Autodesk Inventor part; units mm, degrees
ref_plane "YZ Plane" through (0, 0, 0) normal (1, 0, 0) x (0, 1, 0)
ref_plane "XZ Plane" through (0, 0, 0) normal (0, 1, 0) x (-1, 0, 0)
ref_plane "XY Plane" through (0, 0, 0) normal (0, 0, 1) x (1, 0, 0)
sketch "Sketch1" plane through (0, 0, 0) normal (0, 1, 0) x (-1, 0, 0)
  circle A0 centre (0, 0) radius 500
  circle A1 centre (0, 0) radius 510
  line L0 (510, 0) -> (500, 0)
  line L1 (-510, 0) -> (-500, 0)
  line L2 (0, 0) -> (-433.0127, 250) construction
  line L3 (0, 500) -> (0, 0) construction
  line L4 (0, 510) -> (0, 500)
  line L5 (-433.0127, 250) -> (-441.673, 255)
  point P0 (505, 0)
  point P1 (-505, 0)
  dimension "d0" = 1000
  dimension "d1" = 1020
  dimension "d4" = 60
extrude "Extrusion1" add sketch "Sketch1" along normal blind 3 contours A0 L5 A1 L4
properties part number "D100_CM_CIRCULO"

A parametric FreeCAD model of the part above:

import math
import FreeCAD as App
import Part
import Sketcher

V = App.Vector
Q = App.Units.Quantity

doc = App.newDocument("Part")
params = doc.addObject("Spreadsheet::Sheet", "Params")
for row, (alias, value) in enumerate([
    ("sketch1_radius", "500 mm"),
    ("sketch1_radius2", "510 mm"),
    ("pad1_length", "3 mm"),
], start=1):
    params.set(f"A{row}", alias)
    params.set(f"B{row}", "=" + value)
    params.setAlias(f"B{row}", alias)

body = doc.addObject("PartDesign::Body", "Body")

sketch1 = doc.addObject("Sketcher::SketchObject", "Sketch")
body.addObject(sketch1)
sketch1.AttachmentSupport = (doc.XZ_Plane, [""])
sketch1.MapMode = "FlatFace"
sketch1.addGeometry(Part.ArcOfCircle(Part.Circle(V(0, 0, 0), V(0, 0, 1), 500), math.radians(30), math.radians(90)), False)
sketch1.addGeometry(Part.LineSegment(V(0, 500, 0), V(0, 510, 0)), False)
sketch1.addGeometry(Part.ArcOfCircle(Part.Circle(V(0, 0, 0), V(0, 0, 1), 510), math.radians(30), math.radians(90)), False)
sketch1.addGeometry(Part.LineSegment(V(442, 255, 0), V(433, 250, 0)), False)
sketch1.addConstraint(Sketcher.Constraint("Coincident", 0, 2, 1, 1))
sketch1.addConstraint(Sketcher.Constraint("Coincident", 1, 2, 2, 2))
sketch1.addConstraint(Sketcher.Constraint("Coincident", 2, 1, 3, 1))
sketch1.addConstraint(Sketcher.Constraint("Coincident", 3, 2, 0, 1))
sketch1.addConstraint(Sketcher.Constraint("Vertical", 1))
sketch1.addConstraint(Sketcher.Constraint("Coincident", 0, 3, -1, 1))
sketch1.addConstraint(Sketcher.Constraint("Coincident", 2, 3, -1, 1))
sketch1.addConstraint(Sketcher.Constraint("PointOnObject", 1, 2, -2))
sketch1.addConstraint(Sketcher.Constraint("Radius", 0, Q("500 mm")))
sketch1.addConstraint(Sketcher.Constraint("Radius", 2, Q("510 mm")))
sketch1.addConstraint(Sketcher.Constraint("Angle", 3, Q("-150.0001 deg")))
sketch1.addConstraint(Sketcher.Constraint("DistanceY", -1, 1, 3, 2, Q("250 mm")))
sketch1.setExpression("Constraints[8]", "Params.sketch1_radius")
sketch1.setExpression("Constraints[9]", "Params.sketch1_radius2")
pad1 = doc.addObject("PartDesign::Pad", "Pad")
body.addObject(pad1)
pad1.Profile = sketch1
pad1.setExpression("Length", "Params.pad1_length")
pad1.Reversed = True

doc.recompute()
